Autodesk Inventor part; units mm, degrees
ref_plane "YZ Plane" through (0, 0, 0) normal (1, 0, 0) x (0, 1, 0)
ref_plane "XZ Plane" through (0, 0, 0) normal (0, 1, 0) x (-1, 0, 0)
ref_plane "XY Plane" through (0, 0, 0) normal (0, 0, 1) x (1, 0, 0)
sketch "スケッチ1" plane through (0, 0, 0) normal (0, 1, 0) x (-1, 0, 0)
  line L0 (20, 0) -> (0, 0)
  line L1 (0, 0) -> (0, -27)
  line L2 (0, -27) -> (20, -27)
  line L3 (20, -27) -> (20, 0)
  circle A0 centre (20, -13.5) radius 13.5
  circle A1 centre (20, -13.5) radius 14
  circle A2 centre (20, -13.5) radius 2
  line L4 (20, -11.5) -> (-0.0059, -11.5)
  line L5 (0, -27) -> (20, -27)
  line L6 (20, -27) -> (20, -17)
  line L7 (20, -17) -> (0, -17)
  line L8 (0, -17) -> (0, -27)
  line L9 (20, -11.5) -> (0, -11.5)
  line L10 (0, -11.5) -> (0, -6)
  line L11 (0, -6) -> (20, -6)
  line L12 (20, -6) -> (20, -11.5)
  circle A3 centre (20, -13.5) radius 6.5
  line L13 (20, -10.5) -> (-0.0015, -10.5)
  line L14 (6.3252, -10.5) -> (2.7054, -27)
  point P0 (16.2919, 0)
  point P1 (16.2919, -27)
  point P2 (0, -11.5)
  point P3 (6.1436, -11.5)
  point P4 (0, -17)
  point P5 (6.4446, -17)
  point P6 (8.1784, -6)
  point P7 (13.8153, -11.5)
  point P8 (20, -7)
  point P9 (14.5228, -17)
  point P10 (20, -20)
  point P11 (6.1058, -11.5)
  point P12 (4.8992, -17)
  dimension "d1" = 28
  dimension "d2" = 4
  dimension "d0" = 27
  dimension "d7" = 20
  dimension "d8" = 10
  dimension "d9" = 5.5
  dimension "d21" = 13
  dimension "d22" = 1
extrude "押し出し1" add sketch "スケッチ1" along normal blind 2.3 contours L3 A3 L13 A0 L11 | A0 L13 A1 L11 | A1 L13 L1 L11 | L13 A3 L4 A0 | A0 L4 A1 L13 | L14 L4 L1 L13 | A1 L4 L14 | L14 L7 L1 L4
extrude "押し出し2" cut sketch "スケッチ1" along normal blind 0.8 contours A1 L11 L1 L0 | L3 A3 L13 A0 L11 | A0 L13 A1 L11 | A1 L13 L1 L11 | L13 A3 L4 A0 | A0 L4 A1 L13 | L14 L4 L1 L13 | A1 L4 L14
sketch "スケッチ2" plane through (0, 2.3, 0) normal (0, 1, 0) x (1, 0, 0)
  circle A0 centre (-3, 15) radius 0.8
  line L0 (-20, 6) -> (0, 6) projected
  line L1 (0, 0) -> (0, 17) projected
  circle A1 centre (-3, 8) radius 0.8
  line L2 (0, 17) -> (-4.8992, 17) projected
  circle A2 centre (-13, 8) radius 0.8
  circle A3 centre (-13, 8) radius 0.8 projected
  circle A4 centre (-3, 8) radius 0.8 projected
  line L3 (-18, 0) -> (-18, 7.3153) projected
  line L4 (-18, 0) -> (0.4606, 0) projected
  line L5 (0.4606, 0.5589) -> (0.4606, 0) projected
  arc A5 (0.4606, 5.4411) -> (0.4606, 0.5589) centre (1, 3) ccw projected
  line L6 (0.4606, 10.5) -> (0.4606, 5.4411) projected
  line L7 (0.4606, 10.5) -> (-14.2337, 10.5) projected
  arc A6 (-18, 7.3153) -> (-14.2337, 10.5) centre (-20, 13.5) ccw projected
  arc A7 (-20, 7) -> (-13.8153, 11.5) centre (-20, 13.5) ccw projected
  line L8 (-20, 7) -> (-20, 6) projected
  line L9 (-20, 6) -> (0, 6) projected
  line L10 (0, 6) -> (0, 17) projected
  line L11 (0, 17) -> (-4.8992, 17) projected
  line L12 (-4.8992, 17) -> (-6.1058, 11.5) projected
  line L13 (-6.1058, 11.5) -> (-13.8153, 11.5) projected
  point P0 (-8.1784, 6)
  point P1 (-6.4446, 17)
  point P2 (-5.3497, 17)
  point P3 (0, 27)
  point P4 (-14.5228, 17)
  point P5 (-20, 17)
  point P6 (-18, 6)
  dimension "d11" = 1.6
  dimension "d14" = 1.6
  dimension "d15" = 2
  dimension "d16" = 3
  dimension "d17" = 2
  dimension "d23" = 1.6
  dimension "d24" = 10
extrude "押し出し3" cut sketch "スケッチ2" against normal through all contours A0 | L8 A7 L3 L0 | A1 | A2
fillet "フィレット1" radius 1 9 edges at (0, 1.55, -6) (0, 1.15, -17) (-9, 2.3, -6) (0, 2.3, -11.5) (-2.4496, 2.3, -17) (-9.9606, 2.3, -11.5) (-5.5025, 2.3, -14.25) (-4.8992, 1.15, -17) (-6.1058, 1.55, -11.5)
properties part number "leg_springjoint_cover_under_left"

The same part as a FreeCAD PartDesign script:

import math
import FreeCAD as App
import Part
import Sketcher
from FreeCAD import Vector


def edges_at(feature, points):
    """Names of the edges that pass closest to the given points."""
    edges = feature.Shape.Edges
    near = lambda p: min(range(len(edges)), key=lambda i: edges[i].distToShape(Part.Vertex(*p))[0])
    return sorted({f"Edge{near(p) + 1}" for p in points})

doc = App.newDocument("Part")
body = doc.addObject("PartDesign::Body", "Body")

# Sketch on XZ plane
sketch1 = body.newObject("Sketcher::SketchObject", "Sketch")
sketch1.AttachmentSupport = (doc.getObject("XZ_Plane"), [""])
sketch1.MapMode = "FlatFace"
sketch1.addGeometry(Part.LineSegment(Vector(-20, -7, 0), Vector(-20, -6, 0)), False)
sketch1.addGeometry(Part.LineSegment(Vector(-20, -6, 0), Vector(0, -6, 0)), False)
sketch1.addGeometry(Part.LineSegment(Vector(0, -6, 0), Vector(0, -17, 0)), False)
sketch1.addGeometry(Part.LineSegment(Vector(0, -17, 0), Vector(-4.899218, -17, 0)), False)
sketch1.addGeometry(Part.LineSegment(Vector(-4.899218, -17, 0), Vector(-6.105818, -11.5, 0)), False)
sketch1.addGeometry(Part.LineSegment(Vector(-6.105818, -11.5, 0), Vector(-13.815342, -11.5, 0)), False)
sketch1.addGeometry(Part.ArcOfCircle(Part.Circle(Vector(-20, -13.5, 0), Vector(0, 0, 1), 6.5), math.radians(17.920213), math.radians(90)), False)
sketch1.addConstraint(Sketcher.Constraint("Coincident", 0, 2, 1, 1))
sketch1.addConstraint(Sketcher.Constraint("Coincident", 1, 2, 2, 1))
sketch1.addConstraint(Sketcher.Constraint("Coincident", 2, 2, 3, 1))
sketch1.addConstraint(Sketcher.Constraint("Coincident", 3, 2, 4, 1))
sketch1.addConstraint(Sketcher.Constraint("Coincident", 4, 2, 5, 1))
sketch1.addConstraint(Sketcher.Constraint("Coincident", 5, 2, 6, 1))
sketch1.addConstraint(Sketcher.Constraint("Coincident", 6, 2, 0, 1))
sketch1.addConstraint(Sketcher.Constraint("Vertical", 0))
sketch1.addConstraint(Sketcher.Constraint("Horizontal", 1))
sketch1.addConstraint(Sketcher.Constraint("Vertical", 2))
sketch1.addConstraint(Sketcher.Constraint("Horizontal", 3))
sketch1.addConstraint(Sketcher.Constraint("Horizontal", 5))
sketch1.addConstraint(Sketcher.Constraint("PointOnObject", 1, 2, -2))
sketch1.addConstraint(Sketcher.Constraint("Vertical", 6, 3, 0, 2))
sketch1.addConstraint(Sketcher.Constraint("Radius", 6, 6.5))
sketch1.addConstraint(Sketcher.Constraint("DistanceX", 1, 1, 1, 2, 20.0))
sketch1.addConstraint(Sketcher.Constraint("DistanceY", 0, 1, 0, 2, 1.0))
sketch1.addConstraint(Sketcher.Constraint("DistanceY", 3, 2, 6, 2, 10.0))
sketch1.addConstraint(Sketcher.Constraint("DistanceY", 3, 2, 4, 2, 5.5))
sketch1.addConstraint(Sketcher.Constraint("DistanceY", 0, 2, -1, 1, 6.0))
sketch1.addConstraint(Sketcher.Constraint("DistanceX", 3, 2, 3, 1, 4.8992))
sketch1.addConstraint(Sketcher.Constraint("DistanceX", 5, 2, 5, 1, 7.7095))
pad1 = body.newObject("PartDesign::Pad", "Pad")
pad1.Profile = sketch1
pad1.Length = 2.3
pad1.Reversed = True

# Sketch on XZ plane
sketch2 = body.newObject("Sketcher::SketchObject", "Sketch001")
sketch2.AttachmentSupport = (doc.getObject("XZ_Plane"), [""])
sketch2.MapMode = "FlatFace"
sketch2.addGeometry(Part.ArcOfCircle(Part.Circle(Vector(-20, -13.5, 0), Vector(0, 0, 1), 14), math.radians(32.392365), math.radians(74.641114)), False)
sketch2.addGeometry(Part.LineSegment(Vector(-16.291901, 0, 0), Vector(0, 0, 0)), False)
sketch2.addGeometry(Part.LineSegment(Vector(0, 0, 0), Vector(0, -11.5, 0)), False)
sketch2.addGeometry(Part.LineSegment(Vector(0, -11.5, 0), Vector(-13.815342, -11.5, 0)), False)
sketch2.addGeometry(Part.ArcOfCircle(Part.Circle(Vector(-20, -13.5, 0), Vector(0, 0, 1), 6.5), math.radians(17.920213), math.radians(90)), False)
sketch2.addGeometry(Part.LineSegment(Vector(-20, -7, 0), Vector(-20, -6, 0)), False)
sketch2.addGeometry(Part.LineSegment(Vector(-20, -6, 0), Vector(-8.17841, -6, 0)), False)
sketch2.addConstraint(Sketcher.Constraint("Coincident", 0, 2, 1, 1))
sketch2.addConstraint(Sketcher.Constraint("Coincident", 1, 2, 2, 1))
sketch2.addConstraint(Sketcher.Constraint("Coincident", 2, 2, 3, 1))
sketch2.addConstraint(Sketcher.Constraint("Coincident", 3, 2, 4, 1))
sketch2.addConstraint(Sketcher.Constraint("Coincident", 4, 2, 5, 1))
sketch2.addConstraint(Sketcher.Constraint("Coincident", 5, 2, 6, 1))
sketch2.addConstraint(Sketcher.Constraint("Coincident", 6, 2, 0, 1))
sketch2.addConstraint(Sketcher.Constraint("Horizontal", 1))
sketch2.addConstraint(Sketcher.Constraint("Vertical", 2))
sketch2.addConstraint(Sketcher.Constraint("Horizontal", 3))
sketch2.addConstraint(Sketcher.Constraint("Vertical", 5))
sketch2.addConstraint(Sketcher.Constraint("Horizontal", 6))
sketch2.addConstraint(Sketcher.Constraint("Coincident", 1, 2, -1, 1))
sketch2.addConstraint(Sketcher.Constraint("Coincident", 4, 3, 0, 3))
sketch2.addConstraint(Sketcher.Constraint("Vertical", 0, 3, 4, 2))
sketch2.addConstraint(Sketcher.Constraint("Radius", 0, 14.0))
sketch2.addConstraint(Sketcher.Constraint("Radius", 4, 6.5))
sketch2.addConstraint(Sketcher.Constraint("DistanceY", 5, 1, 5, 2, 1.0))
sketch2.addConstraint(Sketcher.Constraint("DistanceX", 0, 3, -1, 1, 20.0))
sketch2.addConstraint(Sketcher.Constraint("DistanceY", 3, 2, 5, 2, 5.5))
sketch2.addConstraint(Sketcher.Constraint("DistanceY", 2, 2, 2, 1, 11.5))
pocket1 = body.newObject("PartDesign::Pocket", "Pocket")
pocket1.Profile = sketch2
pocket1.Length = 0.8

# Sketch on XZ plane
sketch3 = body.newObject("Sketcher::SketchObject", "Sketch002")
sketch3.AttachmentSupport = (doc.getObject("XZ_Plane"), [""])
sketch3.MapMode = "FlatFace"
sketch3.AttachmentOffset = App.Placement(Vector(0, 0, -2.3), App.Rotation())
sketch3.addGeometry(Part.Circle(Vector(-3, -15, 0), Vector(0, 0, 1), 0.8), False)
sketch3.addGeometry(Part.LineSegment(Vector(-20, -7, 0), Vector(-20, -6, 0)), False)
sketch3.addGeometry(Part.LineSegment(Vector(-20, -6, 0), Vector(-18, -6, 0)), False)
sketch3.addGeometry(Part.LineSegment(Vector(-18, -6, 0), Vector(-18, -7.3153, 0)), False)
sketch3.addGeometry(Part.ArcOfCircle(Part.Circle(Vector(-20, -13.5, 0), Vector(0, 0, 1), 6.50004), math.radians(72.0799), math.radians(90)), False)
sketch3.addGeometry(Part.Circle(Vector(-3, -8, 0), Vector(0, 0, 1), 0.8), False)
sketch3.addGeometry(Part.Circle(Vector(-13, -8, 0), Vector(0, 0, 1), 0.8), False)
sketch3.addConstraint(Sketcher.Constraint("Coincident", 1, 2, 2, 1))
sketch3.addConstraint(Sketcher.Constraint("Coincident", 2, 2, 3, 1))
sketch3.addConstraint(Sketcher.Constraint("Coincident", 3, 2, 4, 1))
sketch3.addConstraint(Sketcher.Constraint("Coincident", 4, 2, 1, 1))
sketch3.addConstraint(Sketcher.Constraint("Vertical", 1))
sketch3.addConstraint(Sketcher.Constraint("Horizontal", 2))
sketch3.addConstraint(Sketcher.Constraint("Vertical", 3))
sketch3.addConstraint(Sketcher.Constraint("Equal", 0, 5))
sketch3.addConstraint(Sketcher.Constraint("Equal", 5, 6))
sketch3.addConstraint(Sketcher.Constraint("Horizontal", 5, 3, 6, 3))
sketch3.addConstraint(Sketcher.Constraint("Vertical", 0, 3, 5, 3))
sketch3.addConstraint(Sketcher.Constraint("Vertical", 4, 3, 1, 2))
sketch3.addConstraint(Sketcher.Constraint("Diameter", 0, 1.6))
sketch3.addConstraint(Sketcher.Constraint("DistanceX", 2, 1, 2, 2, 2.0))
sketch3.addConstraint(Sketcher.Constraint("DistanceX", 0, 3, -1, 1, 3.0))
sketch3.addConstraint(Sketcher.Constraint("DistanceX", 6, 3, 5, 3, 10.0))
sketch3.addConstraint(Sketcher.Constraint("DistanceY", 6, 3, 1, 2, 2.0))
sketch3.addConstraint(Sketcher.Constraint("Radius", 4, 6.5))
sketch3.addConstraint(Sketcher.Constraint("DistanceY", 1, 1, 1, 2, 1.0))
sketch3.addConstraint(Sketcher.Constraint("DistanceY", 0, 3, -1, 1, 15.0))
sketch3.addConstraint(Sketcher.Constraint("DistanceX", 4, 3, -1, 1, 20.0))
sketch3.addConstraint(Sketcher.Constraint("DistanceY", 5, 3, -1, 1, 8.0))
pocket2 = body.newObject("PartDesign::Pocket", "Pocket001")
pocket2.Profile = sketch3
pocket2.Type = "ThroughAll"
pocket2.Reversed = True
doc.recompute()

fillet = body.newObject("PartDesign::Fillet", "Fillet")
fillet.Base = (pocket2, edges_at(pocket2, [
    (0, 1.55, -6),
    (0, 1.15, -17),
    (-9, 2.3, -6),
    (0, 2.3, -11.5),
    (-2.45, 2.3, -17),
    (-9.961, 2.3, -11.5),
    (-5.503, 2.3, -14.25),
    (-4.899, 1.15, -17),
    (-6.106, 1.55, -11.5),
]))
fillet.Radius = 1

doc.recompute()
